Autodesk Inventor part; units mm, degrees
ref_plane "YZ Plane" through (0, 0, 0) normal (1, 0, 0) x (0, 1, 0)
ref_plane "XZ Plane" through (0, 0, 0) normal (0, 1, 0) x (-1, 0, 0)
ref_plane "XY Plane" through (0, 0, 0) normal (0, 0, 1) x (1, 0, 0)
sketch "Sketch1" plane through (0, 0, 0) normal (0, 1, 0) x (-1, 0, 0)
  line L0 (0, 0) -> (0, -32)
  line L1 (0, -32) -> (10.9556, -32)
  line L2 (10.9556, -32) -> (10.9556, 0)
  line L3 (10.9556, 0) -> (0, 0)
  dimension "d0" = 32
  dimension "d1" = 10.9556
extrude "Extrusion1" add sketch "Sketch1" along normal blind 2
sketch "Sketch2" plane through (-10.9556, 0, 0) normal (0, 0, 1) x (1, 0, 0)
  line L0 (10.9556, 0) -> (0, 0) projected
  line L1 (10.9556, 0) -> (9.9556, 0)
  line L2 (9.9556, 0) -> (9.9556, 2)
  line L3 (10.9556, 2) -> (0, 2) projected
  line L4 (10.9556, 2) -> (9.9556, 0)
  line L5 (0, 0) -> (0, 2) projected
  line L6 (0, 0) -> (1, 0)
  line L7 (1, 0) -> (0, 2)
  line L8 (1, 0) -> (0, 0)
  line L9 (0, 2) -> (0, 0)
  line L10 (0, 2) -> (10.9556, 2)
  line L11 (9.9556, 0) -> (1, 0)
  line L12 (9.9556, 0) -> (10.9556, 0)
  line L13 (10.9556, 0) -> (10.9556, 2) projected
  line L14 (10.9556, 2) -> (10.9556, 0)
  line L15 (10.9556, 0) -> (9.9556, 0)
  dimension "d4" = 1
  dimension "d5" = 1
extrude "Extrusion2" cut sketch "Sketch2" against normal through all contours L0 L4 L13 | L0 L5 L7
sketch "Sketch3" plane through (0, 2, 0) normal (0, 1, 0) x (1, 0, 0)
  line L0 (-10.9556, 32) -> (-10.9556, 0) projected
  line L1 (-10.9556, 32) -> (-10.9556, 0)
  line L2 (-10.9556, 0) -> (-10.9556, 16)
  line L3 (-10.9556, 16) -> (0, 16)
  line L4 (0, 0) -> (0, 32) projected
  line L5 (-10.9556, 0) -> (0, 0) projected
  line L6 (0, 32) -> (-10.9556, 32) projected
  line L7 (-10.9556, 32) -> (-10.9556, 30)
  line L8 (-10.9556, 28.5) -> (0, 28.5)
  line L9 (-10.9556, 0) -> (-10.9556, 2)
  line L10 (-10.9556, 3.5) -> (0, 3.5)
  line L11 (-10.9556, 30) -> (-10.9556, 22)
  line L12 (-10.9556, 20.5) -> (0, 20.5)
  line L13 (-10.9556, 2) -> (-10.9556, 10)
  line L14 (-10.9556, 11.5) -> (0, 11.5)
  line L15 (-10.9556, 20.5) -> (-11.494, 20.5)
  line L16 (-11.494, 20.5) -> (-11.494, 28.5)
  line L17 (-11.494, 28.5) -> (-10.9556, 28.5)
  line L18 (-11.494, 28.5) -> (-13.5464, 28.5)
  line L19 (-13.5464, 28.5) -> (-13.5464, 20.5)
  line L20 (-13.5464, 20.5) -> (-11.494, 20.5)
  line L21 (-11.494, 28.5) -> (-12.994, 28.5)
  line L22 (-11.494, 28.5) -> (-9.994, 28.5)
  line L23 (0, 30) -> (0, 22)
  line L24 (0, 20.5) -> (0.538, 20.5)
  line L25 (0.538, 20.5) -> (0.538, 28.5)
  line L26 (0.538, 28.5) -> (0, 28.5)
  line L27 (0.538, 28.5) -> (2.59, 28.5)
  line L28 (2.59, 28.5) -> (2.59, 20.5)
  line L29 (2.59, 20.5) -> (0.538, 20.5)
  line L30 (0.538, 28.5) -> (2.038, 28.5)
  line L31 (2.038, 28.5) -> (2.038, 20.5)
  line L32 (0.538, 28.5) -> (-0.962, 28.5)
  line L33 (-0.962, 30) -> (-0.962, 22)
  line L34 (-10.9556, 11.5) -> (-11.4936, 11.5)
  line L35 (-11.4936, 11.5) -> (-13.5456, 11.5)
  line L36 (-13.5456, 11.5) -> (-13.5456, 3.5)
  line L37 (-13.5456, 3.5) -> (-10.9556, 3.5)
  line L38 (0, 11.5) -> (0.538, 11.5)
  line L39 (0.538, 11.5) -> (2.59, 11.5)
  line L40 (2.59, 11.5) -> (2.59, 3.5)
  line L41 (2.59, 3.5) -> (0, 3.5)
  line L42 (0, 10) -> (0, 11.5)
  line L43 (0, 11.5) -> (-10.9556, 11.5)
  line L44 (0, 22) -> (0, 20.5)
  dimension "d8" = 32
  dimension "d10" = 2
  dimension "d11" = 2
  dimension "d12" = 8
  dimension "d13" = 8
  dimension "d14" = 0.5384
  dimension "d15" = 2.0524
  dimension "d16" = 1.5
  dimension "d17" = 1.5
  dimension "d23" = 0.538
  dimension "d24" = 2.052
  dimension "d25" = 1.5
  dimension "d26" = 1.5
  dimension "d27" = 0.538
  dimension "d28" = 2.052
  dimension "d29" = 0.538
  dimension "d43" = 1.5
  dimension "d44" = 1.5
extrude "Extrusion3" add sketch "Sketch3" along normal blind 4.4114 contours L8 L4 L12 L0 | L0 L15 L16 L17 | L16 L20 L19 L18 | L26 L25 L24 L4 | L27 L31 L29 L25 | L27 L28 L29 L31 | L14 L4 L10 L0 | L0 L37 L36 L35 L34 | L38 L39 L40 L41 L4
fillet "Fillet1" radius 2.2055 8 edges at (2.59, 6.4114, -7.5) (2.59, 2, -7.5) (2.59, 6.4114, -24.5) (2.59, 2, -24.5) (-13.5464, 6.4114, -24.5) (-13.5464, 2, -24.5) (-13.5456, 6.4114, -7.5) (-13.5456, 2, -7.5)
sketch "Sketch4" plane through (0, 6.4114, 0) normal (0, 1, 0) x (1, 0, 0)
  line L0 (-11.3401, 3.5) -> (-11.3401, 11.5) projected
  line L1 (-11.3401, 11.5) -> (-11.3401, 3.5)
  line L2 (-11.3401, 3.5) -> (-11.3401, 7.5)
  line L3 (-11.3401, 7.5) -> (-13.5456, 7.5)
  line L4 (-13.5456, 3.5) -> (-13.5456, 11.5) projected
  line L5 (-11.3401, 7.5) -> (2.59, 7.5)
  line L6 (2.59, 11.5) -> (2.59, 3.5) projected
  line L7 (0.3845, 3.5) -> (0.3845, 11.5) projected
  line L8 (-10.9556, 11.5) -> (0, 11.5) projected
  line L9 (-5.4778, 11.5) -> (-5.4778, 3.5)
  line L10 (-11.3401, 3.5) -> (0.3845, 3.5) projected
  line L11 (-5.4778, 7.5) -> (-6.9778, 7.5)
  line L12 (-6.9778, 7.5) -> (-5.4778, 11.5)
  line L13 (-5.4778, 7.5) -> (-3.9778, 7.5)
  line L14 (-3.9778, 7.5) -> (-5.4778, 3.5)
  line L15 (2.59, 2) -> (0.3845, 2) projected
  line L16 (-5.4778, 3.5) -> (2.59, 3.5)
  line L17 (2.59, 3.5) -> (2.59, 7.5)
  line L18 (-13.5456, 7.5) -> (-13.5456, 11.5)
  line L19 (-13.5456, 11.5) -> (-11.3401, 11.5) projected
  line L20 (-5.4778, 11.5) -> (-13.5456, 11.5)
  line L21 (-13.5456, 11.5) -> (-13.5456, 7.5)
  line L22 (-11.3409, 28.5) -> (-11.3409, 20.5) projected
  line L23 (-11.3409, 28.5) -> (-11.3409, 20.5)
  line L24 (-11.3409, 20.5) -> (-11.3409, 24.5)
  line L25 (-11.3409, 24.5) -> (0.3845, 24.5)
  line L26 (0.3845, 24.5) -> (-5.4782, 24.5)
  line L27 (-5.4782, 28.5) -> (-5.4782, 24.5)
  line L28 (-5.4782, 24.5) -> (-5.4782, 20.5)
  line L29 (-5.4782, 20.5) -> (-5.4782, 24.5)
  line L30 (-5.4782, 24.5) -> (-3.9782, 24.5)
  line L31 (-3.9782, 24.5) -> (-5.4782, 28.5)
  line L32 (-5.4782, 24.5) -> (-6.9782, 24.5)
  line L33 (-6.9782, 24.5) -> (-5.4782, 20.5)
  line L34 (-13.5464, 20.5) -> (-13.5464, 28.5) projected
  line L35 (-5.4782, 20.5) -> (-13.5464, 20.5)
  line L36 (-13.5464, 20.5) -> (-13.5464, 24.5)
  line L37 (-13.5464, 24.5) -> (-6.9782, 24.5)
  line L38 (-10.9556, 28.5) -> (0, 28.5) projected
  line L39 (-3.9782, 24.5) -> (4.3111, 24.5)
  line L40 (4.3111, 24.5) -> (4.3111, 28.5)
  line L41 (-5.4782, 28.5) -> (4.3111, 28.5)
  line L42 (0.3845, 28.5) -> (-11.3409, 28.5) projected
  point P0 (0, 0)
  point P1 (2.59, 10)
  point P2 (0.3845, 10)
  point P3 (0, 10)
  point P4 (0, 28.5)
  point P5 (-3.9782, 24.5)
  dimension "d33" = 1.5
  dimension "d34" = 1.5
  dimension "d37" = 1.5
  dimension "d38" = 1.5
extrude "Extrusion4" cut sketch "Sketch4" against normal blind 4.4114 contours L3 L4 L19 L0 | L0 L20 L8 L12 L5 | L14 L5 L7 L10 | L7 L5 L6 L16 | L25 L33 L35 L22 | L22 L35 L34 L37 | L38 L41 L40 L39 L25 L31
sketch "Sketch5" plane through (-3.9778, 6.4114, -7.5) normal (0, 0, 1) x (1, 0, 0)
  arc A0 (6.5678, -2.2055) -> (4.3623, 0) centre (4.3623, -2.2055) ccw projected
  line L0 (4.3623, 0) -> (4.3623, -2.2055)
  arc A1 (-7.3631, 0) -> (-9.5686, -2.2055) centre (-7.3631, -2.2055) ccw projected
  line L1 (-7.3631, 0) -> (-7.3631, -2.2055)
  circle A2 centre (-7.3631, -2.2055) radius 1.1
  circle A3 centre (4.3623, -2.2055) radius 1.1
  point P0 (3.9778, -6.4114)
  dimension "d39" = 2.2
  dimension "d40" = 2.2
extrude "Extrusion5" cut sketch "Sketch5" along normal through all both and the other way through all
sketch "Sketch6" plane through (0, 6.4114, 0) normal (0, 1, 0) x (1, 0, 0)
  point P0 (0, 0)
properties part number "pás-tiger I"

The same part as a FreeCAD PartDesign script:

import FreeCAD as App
import Part
import Sketcher

V = App.Vector
Q = App.Units.Quantity


def edges_at(feature, points):
    """Names of the edges that pass closest to the given points."""
    edges = feature.Shape.Edges
    near = lambda p: min(range(len(edges)), key=lambda i: edges[i].distToShape(Part.Vertex(*p))[0])
    return sorted({f"Edge{near(p) + 1}" for p in points})

doc = App.newDocument("Part")
body = doc.addObject("PartDesign::Body", "Body")

# Sketch on XZ plane
sketch1 = body.newObject("Sketcher::SketchObject", "Sketch")
sketch1.AttachmentSupport = (doc.getObject("XZ_Plane"), [""])
sketch1.MapMode = "FlatFace"
sketch1.addGeometry([
    Part.LineSegment(V(-11, 0, 0), V(0, 0, 0)),
    Part.LineSegment(V(0, 0, 0), V(0, -32, 0)),
    Part.LineSegment(V(0, -32, 0), V(-11, -32, 0)),
    Part.LineSegment(V(-11, -32, 0), V(-11, 0, 0)),
], False)
sketch1.addConstraint([
    Sketcher.Constraint("Coincident", 0, 2, 1, 1),
    Sketcher.Constraint("Coincident", 1, 2, 2, 1),
    Sketcher.Constraint("Coincident", 2, 2, 3, 1),
    Sketcher.Constraint("Coincident", 3, 2, 0, 1),
    Sketcher.Constraint("Horizontal", 0),
    Sketcher.Constraint("Vertical", 1),
    Sketcher.Constraint("Horizontal", 2),
    Sketcher.Constraint("Vertical", 3),
    Sketcher.Constraint("Coincident", 0, 2, -1, 1),
    Sketcher.Constraint("DistanceY", 1, 2, 1, 1, Q("32 mm")),
    Sketcher.Constraint("DistanceX", 0, 1, 0, 2, Q("10.9556 mm")),
])
pad1 = body.newObject("PartDesign::Pad", "Pad")
pad1.Profile = sketch1
pad1.Length = 2
pad1.Reversed = True

# Sketch on XY plane
sketch2 = body.newObject("Sketcher::SketchObject", "Sketch001")
sketch2.AttachmentSupport = (doc.getObject("XY_Plane"), [""])
sketch2.MapMode = "FlatFace"
sketch2.addGeometry([
    Part.LineSegment(V(-1, 0, 0), V(0, 0, 0)),  # 0
    Part.LineSegment(V(0, 0, 0), V(0, 2, 0)),  # 1
    Part.LineSegment(V(0, 2, 0), V(-1, 0, 0)),  # 2
    Part.LineSegment(V(-11, 0, 0), V(-10, 0, 0)),  # 3
    Part.LineSegment(V(-10, 0, 0), V(-11, 2, 0)),  # 4
    Part.LineSegment(V(-11, 2, 0), V(-11, 0, 0)),  # 5
], False)
sketch2.addConstraint([
    Sketcher.Constraint("Coincident", 0, 2, 1, 1),
    Sketcher.Constraint("Coincident", 1, 2, 2, 1),
    Sketcher.Constraint("Coincident", 2, 2, 0, 1),
    Sketcher.Constraint("Coincident", 3, 2, 4, 1),
    Sketcher.Constraint("Coincident", 4, 2, 5, 1),
    Sketcher.Constraint("Coincident", 5, 2, 3, 1),
    Sketcher.Constraint("Horizontal", 0),
    Sketcher.Constraint("Vertical", 1),
    Sketcher.Constraint("Horizontal", 3),
    Sketcher.Constraint("Vertical", 5),
    Sketcher.Constraint("Coincident", 0, 2, -1, 1),
    Sketcher.Constraint("PointOnObject", 3, 2, -1),
    Sketcher.Constraint("Horizontal", 1, 2, 4, 2),
    Sketcher.Constraint("Equal", 0, 3),
    Sketcher.Constraint("DistanceX", 0, 1, 0, 2, Q("1 mm")),
    Sketcher.Constraint("DistanceY", 1, 1, 1, 2, Q("2 mm")),
    Sketcher.Constraint("DistanceX", 3, 2, -1, 1, Q("9.9556 mm")),
])
pocket1 = body.newObject("PartDesign::Pocket", "Pocket")
pocket1.Profile = sketch2
pocket1.Type = "ThroughAll"

# Sketch on XZ plane
sketch3 = body.newObject("Sketcher::SketchObject", "Sketch002")
sketch3.AttachmentSupport = (doc.getObject("XZ_Plane"), [""])
sketch3.MapMode = "FlatFace"
sketch3.AttachmentOffset = App.Placement(V(0, 0, -2), App.Rotation())
sketch3.addGeometry([
    Part.LineSegment(V(-14, -28, 0), V(-14, -20, 0)),  # 0
    Part.LineSegment(V(-14, -20, 0), V(3, -20, 0)),  # 1
    Part.LineSegment(V(3, -20, 0), V(3, -28, 0)),  # 2
    Part.LineSegment(V(3, -28, 0), V(-14, -28, 0)),  # 3
    Part.LineSegment(V(-14, -12, 0), V(-14, -4, 0)),  # 4
    Part.LineSegment(V(-14, -4, 0), V(3, -4, 0)),  # 5
    Part.LineSegment(V(3, -4, 0), V(3, -12, 0)),  # 6
    Part.LineSegment(V(3, -12, 0), V(-14, -12, 0)),  # 7
], False)
sketch3.addConstraint([
    Sketcher.Constraint("Coincident", 0, 2, 1, 1),
    Sketcher.Constraint("Coincident", 1, 2, 2, 1),
    Sketcher.Constraint("Coincident", 2, 2, 3, 1),
    Sketcher.Constraint("Coincident", 3, 2, 0, 1),
    Sketcher.Constraint("Coincident", 4, 2, 5, 1),
    Sketcher.Constraint("Coincident", 5, 2, 6, 1),
    Sketcher.Constraint("Coincident", 6, 2, 7, 1),
    Sketcher.Constraint("Coincident", 7, 2, 4, 1),
    Sketcher.Constraint("Vertical", 0),
    Sketcher.Constraint("Horizontal", 1),
    Sketcher.Constraint("Vertical", 2),
    Sketcher.Constraint("Horizontal", 3),
    Sketcher.Constraint("Vertical", 4),
    Sketcher.Constraint("Horizontal", 5),
    Sketcher.Constraint("Vertical", 6),
    Sketcher.Constraint("Horizontal", 7),
    Sketcher.Constraint("Vertical", 2, 2, 5, 2),
    Sketcher.Constraint("Equal", 2, 4),
    Sketcher.Constraint("DistanceY", 0, 1, 0, 2, Q("8 mm")),
    Sketcher.Constraint("DistanceY", 0, 2, 4, 2, Q("17 mm")),
    Sketcher.Constraint("DistanceY", 0, 2, -1, 1, Q("20.5 mm")),
    Sketcher.Constraint("DistanceX", -1, 1, 1, 2, Q("2.59 mm")),
    Sketcher.Constraint("DistanceX", 1, 1, 1, 2, Q("16.1364 mm")),
    Sketcher.Constraint("DistanceX", 5, 1, 5, 2, Q("16.1356 mm")),
])
pad2 = body.newObject("PartDesign::Pad", "Pad001")
pad2.Profile = sketch3
pad2.Length = 4.4114
pad2.Reversed = True
doc.recompute()

fillet = body.newObject("PartDesign::Fillet", "Fillet")
fillet.Base = (pad2, edges_at(pad2, [
    (2.59, 6.411, -7.5),
    (2.59, 2, -7.5),
    (2.59, 6.411, -24.5),
    (2.59, 2, -24.5),
    (-13.546, 6.411, -24.5),
    (-13.546, 2, -24.5),
    (-13.546, 6.411, -7.5),
    (-13.546, 2, -7.5),
]))
fillet.Radius = 2.2055

# Sketch on XZ plane
sketch4 = body.newObject("Sketcher::SketchObject", "Sketch003")
sketch4.AttachmentSupport = (doc.getObject("XZ_Plane"), [""])
sketch4.MapMode = "FlatFace"
sketch4.AttachmentOffset = App.Placement(V(0, 0, -6.4114), App.Rotation())
sketch4.addGeometry([
    Part.LineSegment(V(-13.5, -7.5, 0), V(-7, -7.5, 0)),  # 0
    Part.LineSegment(V(-7, -7.5, 0), V(-5.5, -11.5, 0)),  # 1
    Part.LineSegment(V(-5.5, -11.5, 0), V(-13.5, -11.5, 0)),  # 2
    Part.LineSegment(V(-13.5, -11.5, 0), V(-13.5, -7.5, 0)),  # 3
    Part.LineSegment(V(-4, -7.5, 0), V(-5.5, -3.5, 0)),  # 4
    Part.LineSegment(V(-5.5, -3.5, 0), V(2.6, -3.5, 0)),  # 5
    Part.LineSegment(V(2.6, -3.5, 0), V(2.6, -7.5, 0)),  # 6
    Part.LineSegment(V(2.6, -7.5, 0), V(-4, -7.5, 0)),  # 7
    Part.LineSegment(V(-7, -24.5, 0), V(-13.5, -24.5, 0)),  # 8
    Part.LineSegment(V(-13.5, -24.5, 0), V(-13.5, -20.5, 0)),  # 9
    Part.LineSegment(V(-13.5, -20.5, 0), V(-5.5, -20.5, 0)),  # 10
    Part.LineSegment(V(-5.5, -20.5, 0), V(-7, -24.5, 0)),  # 11
    Part.LineSegment(V(4.3, -28.5, 0), V(-5.5, -28.5, 0)),  # 12
    Part.LineSegment(V(-5.5, -28.5, 0), V(-4, -24.5, 0)),  # 13
    Part.LineSegment(V(-4, -24.5, 0), V(4.3, -24.5, 0)),  # 14
    Part.LineSegment(V(4.3, -24.5, 0), V(4.3, -28.5, 0)),  # 15
], False)
sketch4.addConstraint([
    Sketcher.Constraint("Coincident", 0, 2, 1, 1),
    Sketcher.Constraint("Coincident", 1, 2, 2, 1),
    Sketcher.Constraint("Coincident", 2, 2, 3, 1),
    Sketcher.Constraint("Coincident", 3, 2, 0, 1),
    Sketcher.Constraint("Coincident", 4, 2, 5, 1),
    Sketcher.Constraint("Coincident", 5, 2, 6, 1),
    Sketcher.Constraint("Coincident", 6, 2, 7, 1),
    Sketcher.Constraint("Coincident", 7, 2, 4, 1),
    Sketcher.Constraint("Coincident", 8, 2, 9, 1),
    Sketcher.Constraint("Coincident", 9, 2, 10, 1),
    Sketcher.Constraint("Coincident", 10, 2, 11, 1),
    Sketcher.Constraint("Coincident", 11, 2, 8, 1),
    Sketcher.Constraint("Coincident", 12, 2, 13, 1),
    Sketcher.Constraint("Coincident", 13, 2, 14, 1),
    Sketcher.Constraint("Coincident", 14, 2, 15, 1),
    Sketcher.Constraint("Coincident", 15, 2, 12, 1),
    Sketcher.Constraint("Horizontal", 0),
    Sketcher.Constraint("Horizontal", 2),
    Sketcher.Constraint("Vertical", 3),
    Sketcher.Constraint("Horizontal", 5),
    Sketcher.Constraint("Vertical", 6),
    Sketcher.Constraint("Horizontal", 7),
    Sketcher.Constraint("Horizontal", 8),
    Sketcher.Constraint("Vertical", 9),
    Sketcher.Constraint("Horizontal", 10),
    Sketcher.Constraint("Horizontal", 12),
    Sketcher.Constraint("Horizontal", 14),
    Sketcher.Constraint("Vertical", 15),
    Sketcher.Constraint("Parallel", 1, 4),
    Sketcher.Constraint("Parallel", 11, 13),
    Sketcher.Constraint("Horizontal", 3, 2, 6, 2),
    Sketcher.Constraint("Horizontal", 11, 2, 13, 2),
    Sketcher.Constraint("Vertical", 1, 2, 4, 2),
    Sketcher.Constraint("Vertical", 10, 2, 12, 2),
    Sketcher.Constraint("Equal", 2, 5),
    Sketcher.Constraint("Equal", 0, 7),
    Sketcher.Constraint("Equal", 6, 9),
    Sketcher.Constraint("Equal", 9, 15),
    Sketcher.Constraint("Equal", 4, 11),
    Sketcher.Constraint("DistanceX", 0, 2, 1, 2, Q("1.5 mm")),
    Sketcher.Constraint("DistanceY", 3, 1, 3, 2, Q("4 mm")),
    Sketcher.Constraint("DistanceY", 8, 2, 2, 2, Q("13 mm")),
    Sketcher.Constraint("DistanceY", 0, 2, -1, 1, Q("7.5 mm")),
    Sketcher.Constraint("DistanceX", 0, 2, 10, 2, Q("1.4996 mm")),
    Sketcher.Constraint("DistanceX", -1, 1, 5, 2, Q("2.59 mm")),
    Sketcher.Constraint("DistanceX", 0, 1, 0, 2, Q("6.5678 mm")),
    Sketcher.Constraint("DistanceX", 8, 2, 8, 1, Q("6.5682 mm")),
    Sketcher.Constraint("DistanceX", 12, 2, 12, 1, Q("9.7893 mm")),
])
pocket2 = body.newObject("PartDesign::Pocket", "Pocket001")
pocket2.Profile = sketch4
pocket2.Length = 4.4114
pocket2.Reversed = True

# Sketch on XY plane
sketch5 = body.newObject("Sketcher::SketchObject", "Sketch004")
sketch5.AttachmentSupport = (doc.getObject("XY_Plane"), [""])
sketch5.MapMode = "FlatFace"
sketch5.AttachmentOffset = App.Placement(V(0, 0, -7.5), App.Rotation())
sketch5.addGeometry([
    Part.Circle(V(-11.3, 4.2, 0), V(0, 0, 1), 1.1),
    Part.Circle(V(0.4, 4.2, 0), V(0, 0, 1), 1.1),
], False)
sketch5.addConstraint([
    Sketcher.Constraint("Equal", 0, 1),
    Sketcher.Constraint("Horizontal", 0, 3, 1, 3),
    Sketcher.Constraint("Diameter", 0, Q("2.2 mm")),
    Sketcher.Constraint("DistanceX", 0, 3, -1, 1, Q("11.341 mm")),
    Sketcher.Constraint("DistanceY", -1, 1, 0, 3, Q("4.206 mm")),
    Sketcher.Constraint("DistanceX", -1, 1, 1, 3, Q("0.3845 mm")),
])
pocket3 = body.newObject("PartDesign::Pocket", "Pocket002")
pocket3.Profile = sketch5
pocket3.Type = "ThroughAll"
pocket3.Midplane = True

doc.recompute()
